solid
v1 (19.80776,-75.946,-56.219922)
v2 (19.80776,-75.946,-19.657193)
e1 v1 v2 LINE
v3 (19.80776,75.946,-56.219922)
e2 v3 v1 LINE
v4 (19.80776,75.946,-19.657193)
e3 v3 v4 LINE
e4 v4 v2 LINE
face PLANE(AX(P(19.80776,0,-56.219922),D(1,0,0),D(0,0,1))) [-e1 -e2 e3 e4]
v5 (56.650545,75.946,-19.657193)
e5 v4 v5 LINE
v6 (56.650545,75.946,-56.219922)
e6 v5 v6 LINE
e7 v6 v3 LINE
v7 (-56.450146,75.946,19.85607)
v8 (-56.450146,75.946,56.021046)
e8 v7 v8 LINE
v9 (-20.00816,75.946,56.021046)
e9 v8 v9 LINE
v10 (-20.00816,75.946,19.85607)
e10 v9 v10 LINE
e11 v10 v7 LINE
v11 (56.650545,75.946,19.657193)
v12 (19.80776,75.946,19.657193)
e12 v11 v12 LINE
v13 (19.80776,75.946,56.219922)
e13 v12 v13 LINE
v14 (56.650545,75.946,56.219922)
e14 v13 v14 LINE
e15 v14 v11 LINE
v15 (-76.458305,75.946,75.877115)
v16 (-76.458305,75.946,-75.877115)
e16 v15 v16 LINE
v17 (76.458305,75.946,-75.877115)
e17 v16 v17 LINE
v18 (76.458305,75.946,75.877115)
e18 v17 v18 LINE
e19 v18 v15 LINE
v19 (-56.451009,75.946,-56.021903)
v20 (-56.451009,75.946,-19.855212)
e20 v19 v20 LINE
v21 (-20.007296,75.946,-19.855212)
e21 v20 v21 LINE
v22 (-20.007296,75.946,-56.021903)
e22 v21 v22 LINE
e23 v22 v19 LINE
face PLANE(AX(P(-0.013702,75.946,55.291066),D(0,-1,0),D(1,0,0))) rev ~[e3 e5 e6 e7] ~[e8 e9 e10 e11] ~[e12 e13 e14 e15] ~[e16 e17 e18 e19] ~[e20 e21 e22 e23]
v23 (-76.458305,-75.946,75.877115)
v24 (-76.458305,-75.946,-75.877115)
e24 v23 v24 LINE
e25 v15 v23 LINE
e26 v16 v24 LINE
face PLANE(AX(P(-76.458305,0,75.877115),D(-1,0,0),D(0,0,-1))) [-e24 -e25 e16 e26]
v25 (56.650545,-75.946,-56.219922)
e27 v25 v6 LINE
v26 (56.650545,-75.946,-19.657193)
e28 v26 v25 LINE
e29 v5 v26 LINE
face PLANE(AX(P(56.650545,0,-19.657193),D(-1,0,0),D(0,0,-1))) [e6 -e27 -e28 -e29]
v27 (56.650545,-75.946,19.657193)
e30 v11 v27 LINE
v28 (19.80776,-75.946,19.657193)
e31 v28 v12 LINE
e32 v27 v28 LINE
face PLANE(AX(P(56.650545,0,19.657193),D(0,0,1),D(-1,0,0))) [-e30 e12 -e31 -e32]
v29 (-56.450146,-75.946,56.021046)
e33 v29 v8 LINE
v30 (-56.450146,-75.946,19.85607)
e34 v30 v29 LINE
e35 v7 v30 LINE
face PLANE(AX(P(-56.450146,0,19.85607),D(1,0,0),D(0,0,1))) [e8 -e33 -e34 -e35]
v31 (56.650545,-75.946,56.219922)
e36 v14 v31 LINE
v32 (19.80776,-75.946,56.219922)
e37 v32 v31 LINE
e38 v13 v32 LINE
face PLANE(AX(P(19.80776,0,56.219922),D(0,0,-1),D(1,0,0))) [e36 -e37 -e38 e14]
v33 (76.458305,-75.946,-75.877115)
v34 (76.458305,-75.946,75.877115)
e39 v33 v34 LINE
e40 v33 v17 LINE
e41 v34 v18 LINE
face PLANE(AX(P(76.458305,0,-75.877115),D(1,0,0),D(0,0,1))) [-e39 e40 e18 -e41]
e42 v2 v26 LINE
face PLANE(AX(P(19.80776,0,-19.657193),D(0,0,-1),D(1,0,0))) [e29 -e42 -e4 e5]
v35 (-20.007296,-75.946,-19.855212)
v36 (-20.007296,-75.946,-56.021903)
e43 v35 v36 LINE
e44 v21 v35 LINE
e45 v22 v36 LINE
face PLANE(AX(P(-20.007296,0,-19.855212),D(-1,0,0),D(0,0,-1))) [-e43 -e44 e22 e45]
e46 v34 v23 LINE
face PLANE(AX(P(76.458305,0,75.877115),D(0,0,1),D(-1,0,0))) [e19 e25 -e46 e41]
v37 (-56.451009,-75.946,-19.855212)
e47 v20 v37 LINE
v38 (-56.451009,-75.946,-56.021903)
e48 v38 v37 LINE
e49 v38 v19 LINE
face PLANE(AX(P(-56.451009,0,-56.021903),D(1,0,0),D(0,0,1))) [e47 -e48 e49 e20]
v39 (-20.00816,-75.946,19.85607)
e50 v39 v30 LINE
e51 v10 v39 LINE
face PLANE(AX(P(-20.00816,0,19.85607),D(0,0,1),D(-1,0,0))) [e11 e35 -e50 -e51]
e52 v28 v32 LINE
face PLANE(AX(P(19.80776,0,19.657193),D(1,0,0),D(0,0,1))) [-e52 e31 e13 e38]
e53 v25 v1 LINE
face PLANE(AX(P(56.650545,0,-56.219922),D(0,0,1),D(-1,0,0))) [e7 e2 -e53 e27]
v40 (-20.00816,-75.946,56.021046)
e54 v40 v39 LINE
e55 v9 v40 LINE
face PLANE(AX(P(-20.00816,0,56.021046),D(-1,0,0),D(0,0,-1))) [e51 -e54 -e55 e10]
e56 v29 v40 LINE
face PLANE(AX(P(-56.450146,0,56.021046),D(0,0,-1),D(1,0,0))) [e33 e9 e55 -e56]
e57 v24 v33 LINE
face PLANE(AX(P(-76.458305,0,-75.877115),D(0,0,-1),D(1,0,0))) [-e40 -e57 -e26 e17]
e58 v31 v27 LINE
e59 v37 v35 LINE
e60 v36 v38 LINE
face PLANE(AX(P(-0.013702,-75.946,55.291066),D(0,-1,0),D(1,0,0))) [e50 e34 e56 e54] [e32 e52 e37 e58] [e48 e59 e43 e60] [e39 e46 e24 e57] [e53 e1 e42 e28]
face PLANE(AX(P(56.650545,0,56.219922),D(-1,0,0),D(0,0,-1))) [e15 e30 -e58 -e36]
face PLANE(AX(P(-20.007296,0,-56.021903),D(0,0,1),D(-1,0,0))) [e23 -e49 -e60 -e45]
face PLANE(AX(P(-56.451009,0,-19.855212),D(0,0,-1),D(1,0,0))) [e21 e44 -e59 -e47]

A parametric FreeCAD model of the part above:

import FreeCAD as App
import Part
import Sketcher
from FreeCAD import Vector


def add_polygon(sketch, points):
    """Adds a closed chain of lines whose ends are joined by coincident constraints."""
    first, n = sketch.GeometryCount, len(points)
    for a, b in zip(points, points[1:] + points[:1]):
        sketch.addGeometry(Part.LineSegment(App.Vector(*a, 0), App.Vector(*b, 0)), False)
    for i in range(n):
        sketch.addConstraint(Sketcher.Constraint("Coincident", first + i, 2, first + (i + 1) % n, 1))

doc = App.newDocument("Part")
params = doc.addObject("Spreadsheet::Sheet", "Params")
for row, (alias, value) in enumerate([
    ("pad1_length", "5.98 in"),
], start=1):
    params.set(f"A{row}", alias)
    params.set(f"B{row}", "=" + value)
    params.setAlias(f"B{row}", alias)

body = doc.addObject("PartDesign::Body", "Body")

sketch1 = body.newObject("Sketcher::SketchObject", "Sketch")
sketch1.AttachmentSupport = (doc.getObject("XZ_Plane"), [""])
sketch1.MapMode = "FlatFace"
add_polygon(sketch1, [(76, 76), (-76, 76), (-76, -76), (76, -76)])
add_polygon(sketch1, [(57, -56), (20, -56), (20, -20), (57, -20)])
add_polygon(sketch1, [(20, 20), (20, 56), (57, 56), (57, 20)])
add_polygon(sketch1, [(-56, -56), (-56, -20), (-20, -20), (-20, -56)])
add_polygon(sketch1, [(-56, 56), (-20, 56), (-20, 20), (-56, 20)])
sketch1.addConstraint([
    Sketcher.Constraint("Horizontal", 0),
    Sketcher.Constraint("Vertical", 1),
    Sketcher.Constraint("Horizontal", 2),
    Sketcher.Constraint("Vertical", 3),
    Sketcher.Constraint("Horizontal", 4),
    Sketcher.Constraint("Vertical", 5),
    Sketcher.Constraint("Horizontal", 6),
    Sketcher.Constraint("Vertical", 7),
    Sketcher.Constraint("Vertical", 8),
    Sketcher.Constraint("Horizontal", 9),
    Sketcher.Constraint("Vertical", 10),
    Sketcher.Constraint("Horizontal", 11),
    Sketcher.Constraint("Vertical", 12),
    Sketcher.Constraint("Horizontal", 13),
    Sketcher.Constraint("Vertical", 14),
    Sketcher.Constraint("Horizontal", 15),
    Sketcher.Constraint("Horizontal", 16),
    Sketcher.Constraint("Vertical", 17),
    Sketcher.Constraint("Horizontal", 18),
    Sketcher.Constraint("Vertical", 19),
    Sketcher.Constraint("Symmetric", 0, 2, 2, 2, -1, 1),
    Sketcher.Constraint("Symmetric", 4, 2, 8, 2, -1),
    Sketcher.Constraint("Symmetric", 6, 2, 10, 2, -1),
    Sketcher.Constraint("DistanceX", 0, 2, 0, 1, 152.91661),
    Sketcher.Constraint("DistanceY", 1, 2, 1, 1, 151.75423),
    Sketcher.Constraint("DistanceY", 5, 1, 5, 2, 36.562729),
    Sketcher.Constraint("DistanceY", 12, 1, 12, 2, 36.166691),
    Sketcher.Constraint("DistanceX", 4, 2, 4, 1, 36.842785),
    Sketcher.Constraint("DistanceX", 13, 1, 13, 2, 36.443713),
    Sketcher.Constraint("DistanceX", 16, 1, 16, 2, 36.441986),
    Sketcher.Constraint("DistanceY", 17, 2, 17, 1, 36.164976),
    Sketcher.Constraint("DistanceX", -1, 1, 4, 2, 19.80776),
    Sketcher.Constraint("DistanceY", 4, 2, -1, 1, 56.219922),
    Sketcher.Constraint("DistanceX", 12, 2, -1, 1, 56.451009),
    Sketcher.Constraint("DistanceX", 16, 2, -1, 1, 20.00816),
    Sketcher.Constraint("DistanceY", -1, 1, 17, 2, 19.85607),
    Sketcher.Constraint("DistanceY", 12, 2, 5, 2, 0.198019),
])
pad1 = body.newObject("PartDesign::Pad", "Pad")
pad1.Profile = sketch1
pad1.setExpression("Length", "Params.pad1_length")
pad1.Midplane = True

doc.recompute()
